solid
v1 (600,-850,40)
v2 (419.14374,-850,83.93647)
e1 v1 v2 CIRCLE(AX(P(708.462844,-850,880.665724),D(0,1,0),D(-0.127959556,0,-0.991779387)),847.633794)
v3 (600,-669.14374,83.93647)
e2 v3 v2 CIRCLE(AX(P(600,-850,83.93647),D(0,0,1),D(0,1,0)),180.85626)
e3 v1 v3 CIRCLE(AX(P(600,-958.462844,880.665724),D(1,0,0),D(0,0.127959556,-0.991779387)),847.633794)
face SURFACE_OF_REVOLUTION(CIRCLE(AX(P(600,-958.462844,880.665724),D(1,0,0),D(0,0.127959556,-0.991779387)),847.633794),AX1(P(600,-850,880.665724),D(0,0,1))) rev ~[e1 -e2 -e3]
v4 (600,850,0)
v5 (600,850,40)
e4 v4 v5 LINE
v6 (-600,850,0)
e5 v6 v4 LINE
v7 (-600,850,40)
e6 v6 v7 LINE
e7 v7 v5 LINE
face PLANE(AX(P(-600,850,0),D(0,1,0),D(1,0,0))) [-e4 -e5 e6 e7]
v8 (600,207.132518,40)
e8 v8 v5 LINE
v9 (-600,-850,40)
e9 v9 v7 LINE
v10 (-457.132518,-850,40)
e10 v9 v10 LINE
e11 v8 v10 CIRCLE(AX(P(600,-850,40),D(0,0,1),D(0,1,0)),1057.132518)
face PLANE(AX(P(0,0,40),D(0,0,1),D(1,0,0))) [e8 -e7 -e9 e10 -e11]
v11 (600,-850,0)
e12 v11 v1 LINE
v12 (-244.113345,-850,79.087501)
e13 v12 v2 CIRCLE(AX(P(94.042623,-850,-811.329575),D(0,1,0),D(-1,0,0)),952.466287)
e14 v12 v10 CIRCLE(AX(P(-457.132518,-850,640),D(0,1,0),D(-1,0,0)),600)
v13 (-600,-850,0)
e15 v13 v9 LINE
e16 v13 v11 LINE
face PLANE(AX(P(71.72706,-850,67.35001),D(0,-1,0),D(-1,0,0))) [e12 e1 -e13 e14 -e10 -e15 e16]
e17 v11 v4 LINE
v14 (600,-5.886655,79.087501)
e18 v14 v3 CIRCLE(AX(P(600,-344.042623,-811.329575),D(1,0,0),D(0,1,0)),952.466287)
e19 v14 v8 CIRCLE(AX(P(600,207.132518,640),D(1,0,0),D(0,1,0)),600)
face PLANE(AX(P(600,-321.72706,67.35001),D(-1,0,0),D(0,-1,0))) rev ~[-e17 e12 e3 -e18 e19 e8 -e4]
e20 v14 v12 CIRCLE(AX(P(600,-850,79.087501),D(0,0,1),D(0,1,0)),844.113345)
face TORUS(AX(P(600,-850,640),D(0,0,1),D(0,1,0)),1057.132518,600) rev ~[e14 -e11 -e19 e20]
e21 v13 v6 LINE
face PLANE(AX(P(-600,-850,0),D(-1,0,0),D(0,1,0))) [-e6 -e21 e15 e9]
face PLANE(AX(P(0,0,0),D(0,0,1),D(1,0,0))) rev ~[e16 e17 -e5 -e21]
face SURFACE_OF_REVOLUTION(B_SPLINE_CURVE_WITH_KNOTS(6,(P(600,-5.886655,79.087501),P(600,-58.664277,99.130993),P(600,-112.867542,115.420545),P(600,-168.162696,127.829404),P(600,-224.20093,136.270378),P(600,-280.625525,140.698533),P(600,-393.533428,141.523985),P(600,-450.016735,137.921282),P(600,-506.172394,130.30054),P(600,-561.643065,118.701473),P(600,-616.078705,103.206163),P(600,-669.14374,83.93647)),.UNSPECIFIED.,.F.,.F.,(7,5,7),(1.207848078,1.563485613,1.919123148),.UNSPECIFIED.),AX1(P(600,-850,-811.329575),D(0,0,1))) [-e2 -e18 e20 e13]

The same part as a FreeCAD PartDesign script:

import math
import FreeCAD as App
import Part
import Sketcher


def add_polygon(sketch, points):
    """Adds a closed chain of lines whose ends are joined by coincident constraints."""
    first, n = sketch.GeometryCount, len(points)
    for a, b in zip(points, points[1:] + points[:1]):
        sketch.addGeometry(Part.LineSegment(App.Vector(*a, 0), App.Vector(*b, 0)), False)
    for i in range(n):
        sketch.addConstraint(Sketcher.Constraint("Coincident", first + i, 2, first + (i + 1) % n, 1))

doc = App.newDocument("Part")
body = doc.addObject("PartDesign::Body", "Body")

sketch1 = body.newObject("Sketcher::SketchObject", "Sketch")
sketch1.AttachmentSupport = (doc.getObject("XY_Plane"), [""])
sketch1.MapMode = "FlatFace"
add_polygon(sketch1, [(-600, 850), (-600, -850), (600, -850), (600, 850)])
sketch1.addConstraint([
    Sketcher.Constraint("Vertical", 0),
    Sketcher.Constraint("Horizontal", 1),
    Sketcher.Constraint("Vertical", 2),
    Sketcher.Constraint("Horizontal", 3),
    Sketcher.Constraint("Symmetric", 0, 2, 2, 2, -1, 1),
    Sketcher.Constraint("DistanceX", 1, 1, 1, 2, 1200.0),
    Sketcher.Constraint("DistanceY", 0, 2, 0, 1, 1700.0),
])
pad1 = body.newObject("PartDesign::Pad", "Pad")
pad1.Profile = sketch1
pad1.Length = 40

sketch2 = body.newObject("Sketcher::SketchObject", "Sketch001")
sketch2.AttachmentSupport = (doc.getObject("XZ_Plane"), [""])
sketch2.MapMode = "FlatFace"
sketch2.AttachmentOffset = App.Placement(App.Vector(0, 0, 850), App.Rotation())
sketch2.addGeometry([
    Part.LineSegment(App.Vector(-457, 40, 0), App.Vector(600, 40, 0)),
    Part.ArcOfCircle(Part.Circle(App.Vector(708, 881, 0), App.Vector(0, 0, 1), 848), math.radians(-109.96), math.radians(-97.35)),
    Part.ArcOfCircle(Part.Circle(App.Vector(94, -811, 0), App.Vector(0, 0, 1), 952), math.radians(70), math.radians(111)),
    Part.ArcOfCircle(Part.Circle(App.Vector(-457, 640, 0), App.Vector(0, 0, 1), 600), math.radians(-90), math.radians(-69)),
], False)
sketch2.addConstraint([
    Sketcher.Constraint("Coincident", 0, 2, 1, 2),
    Sketcher.Constraint("Tangent", 1, 1, 2, 1),
    Sketcher.Constraint("Tangent", 2, 2, 3, 2),
    Sketcher.Constraint("Tangent", 3, 1, 0, 1),
    Sketcher.Constraint("Horizontal", 0),
    Sketcher.Constraint("Radius", 3, 600.0),
    Sketcher.Constraint("DistanceY", -1, 1, 3, 3, 640.0),
    Sketcher.Constraint("DistanceX", -1, 1, 0, 2, 600.0),
    Sketcher.Constraint("Radius", 1, 847.633794),
    Sketcher.Constraint("Radius", 2, 952.466287),
    Sketcher.Constraint("DistanceX", 0, 1, 0, 2, 1057.132518),
    Sketcher.Constraint("DistanceY", 2, 3, 1, 3, 1691.995299),
])

sketch3 = body.newObject("Sketcher::SketchObject", "Sketch002")
sketch3.AttachmentSupport = (doc.getObject("XY_Plane"), [""])
sketch3.MapMode = "FlatFace"
sketch3.AttachmentOffset = App.Placement(App.Vector(0, 0, 40), App.Rotation())
sketch3.addGeometry(Part.ArcOfCircle(Part.Circle(App.Vector(600, -850, 0), App.Vector(0, 0, 1), 1057), math.radians(90), math.radians(180)), False)
sketch3.addConstraint([
    Sketcher.Constraint("DistanceX", -1, 1, 0, 3, 600.0),
    Sketcher.Constraint("DistanceY", 0, 3, -1, 1, 850.0),
    Sketcher.Constraint("DistanceX", -1, 1, 0, 1, 600.0),
    Sketcher.Constraint("DistanceY", 0, 2, -1, 1, 850.0),
    Sketcher.Constraint("Radius", 0, 1057.132518),
])
doc.recompute()

additivepipe = body.newObject("PartDesign::AdditivePipe", "AdditivePipe")
additivepipe.Profile = sketch2
additivepipe.Spine = (sketch3, ["Edge1"])

doc.recompute()
